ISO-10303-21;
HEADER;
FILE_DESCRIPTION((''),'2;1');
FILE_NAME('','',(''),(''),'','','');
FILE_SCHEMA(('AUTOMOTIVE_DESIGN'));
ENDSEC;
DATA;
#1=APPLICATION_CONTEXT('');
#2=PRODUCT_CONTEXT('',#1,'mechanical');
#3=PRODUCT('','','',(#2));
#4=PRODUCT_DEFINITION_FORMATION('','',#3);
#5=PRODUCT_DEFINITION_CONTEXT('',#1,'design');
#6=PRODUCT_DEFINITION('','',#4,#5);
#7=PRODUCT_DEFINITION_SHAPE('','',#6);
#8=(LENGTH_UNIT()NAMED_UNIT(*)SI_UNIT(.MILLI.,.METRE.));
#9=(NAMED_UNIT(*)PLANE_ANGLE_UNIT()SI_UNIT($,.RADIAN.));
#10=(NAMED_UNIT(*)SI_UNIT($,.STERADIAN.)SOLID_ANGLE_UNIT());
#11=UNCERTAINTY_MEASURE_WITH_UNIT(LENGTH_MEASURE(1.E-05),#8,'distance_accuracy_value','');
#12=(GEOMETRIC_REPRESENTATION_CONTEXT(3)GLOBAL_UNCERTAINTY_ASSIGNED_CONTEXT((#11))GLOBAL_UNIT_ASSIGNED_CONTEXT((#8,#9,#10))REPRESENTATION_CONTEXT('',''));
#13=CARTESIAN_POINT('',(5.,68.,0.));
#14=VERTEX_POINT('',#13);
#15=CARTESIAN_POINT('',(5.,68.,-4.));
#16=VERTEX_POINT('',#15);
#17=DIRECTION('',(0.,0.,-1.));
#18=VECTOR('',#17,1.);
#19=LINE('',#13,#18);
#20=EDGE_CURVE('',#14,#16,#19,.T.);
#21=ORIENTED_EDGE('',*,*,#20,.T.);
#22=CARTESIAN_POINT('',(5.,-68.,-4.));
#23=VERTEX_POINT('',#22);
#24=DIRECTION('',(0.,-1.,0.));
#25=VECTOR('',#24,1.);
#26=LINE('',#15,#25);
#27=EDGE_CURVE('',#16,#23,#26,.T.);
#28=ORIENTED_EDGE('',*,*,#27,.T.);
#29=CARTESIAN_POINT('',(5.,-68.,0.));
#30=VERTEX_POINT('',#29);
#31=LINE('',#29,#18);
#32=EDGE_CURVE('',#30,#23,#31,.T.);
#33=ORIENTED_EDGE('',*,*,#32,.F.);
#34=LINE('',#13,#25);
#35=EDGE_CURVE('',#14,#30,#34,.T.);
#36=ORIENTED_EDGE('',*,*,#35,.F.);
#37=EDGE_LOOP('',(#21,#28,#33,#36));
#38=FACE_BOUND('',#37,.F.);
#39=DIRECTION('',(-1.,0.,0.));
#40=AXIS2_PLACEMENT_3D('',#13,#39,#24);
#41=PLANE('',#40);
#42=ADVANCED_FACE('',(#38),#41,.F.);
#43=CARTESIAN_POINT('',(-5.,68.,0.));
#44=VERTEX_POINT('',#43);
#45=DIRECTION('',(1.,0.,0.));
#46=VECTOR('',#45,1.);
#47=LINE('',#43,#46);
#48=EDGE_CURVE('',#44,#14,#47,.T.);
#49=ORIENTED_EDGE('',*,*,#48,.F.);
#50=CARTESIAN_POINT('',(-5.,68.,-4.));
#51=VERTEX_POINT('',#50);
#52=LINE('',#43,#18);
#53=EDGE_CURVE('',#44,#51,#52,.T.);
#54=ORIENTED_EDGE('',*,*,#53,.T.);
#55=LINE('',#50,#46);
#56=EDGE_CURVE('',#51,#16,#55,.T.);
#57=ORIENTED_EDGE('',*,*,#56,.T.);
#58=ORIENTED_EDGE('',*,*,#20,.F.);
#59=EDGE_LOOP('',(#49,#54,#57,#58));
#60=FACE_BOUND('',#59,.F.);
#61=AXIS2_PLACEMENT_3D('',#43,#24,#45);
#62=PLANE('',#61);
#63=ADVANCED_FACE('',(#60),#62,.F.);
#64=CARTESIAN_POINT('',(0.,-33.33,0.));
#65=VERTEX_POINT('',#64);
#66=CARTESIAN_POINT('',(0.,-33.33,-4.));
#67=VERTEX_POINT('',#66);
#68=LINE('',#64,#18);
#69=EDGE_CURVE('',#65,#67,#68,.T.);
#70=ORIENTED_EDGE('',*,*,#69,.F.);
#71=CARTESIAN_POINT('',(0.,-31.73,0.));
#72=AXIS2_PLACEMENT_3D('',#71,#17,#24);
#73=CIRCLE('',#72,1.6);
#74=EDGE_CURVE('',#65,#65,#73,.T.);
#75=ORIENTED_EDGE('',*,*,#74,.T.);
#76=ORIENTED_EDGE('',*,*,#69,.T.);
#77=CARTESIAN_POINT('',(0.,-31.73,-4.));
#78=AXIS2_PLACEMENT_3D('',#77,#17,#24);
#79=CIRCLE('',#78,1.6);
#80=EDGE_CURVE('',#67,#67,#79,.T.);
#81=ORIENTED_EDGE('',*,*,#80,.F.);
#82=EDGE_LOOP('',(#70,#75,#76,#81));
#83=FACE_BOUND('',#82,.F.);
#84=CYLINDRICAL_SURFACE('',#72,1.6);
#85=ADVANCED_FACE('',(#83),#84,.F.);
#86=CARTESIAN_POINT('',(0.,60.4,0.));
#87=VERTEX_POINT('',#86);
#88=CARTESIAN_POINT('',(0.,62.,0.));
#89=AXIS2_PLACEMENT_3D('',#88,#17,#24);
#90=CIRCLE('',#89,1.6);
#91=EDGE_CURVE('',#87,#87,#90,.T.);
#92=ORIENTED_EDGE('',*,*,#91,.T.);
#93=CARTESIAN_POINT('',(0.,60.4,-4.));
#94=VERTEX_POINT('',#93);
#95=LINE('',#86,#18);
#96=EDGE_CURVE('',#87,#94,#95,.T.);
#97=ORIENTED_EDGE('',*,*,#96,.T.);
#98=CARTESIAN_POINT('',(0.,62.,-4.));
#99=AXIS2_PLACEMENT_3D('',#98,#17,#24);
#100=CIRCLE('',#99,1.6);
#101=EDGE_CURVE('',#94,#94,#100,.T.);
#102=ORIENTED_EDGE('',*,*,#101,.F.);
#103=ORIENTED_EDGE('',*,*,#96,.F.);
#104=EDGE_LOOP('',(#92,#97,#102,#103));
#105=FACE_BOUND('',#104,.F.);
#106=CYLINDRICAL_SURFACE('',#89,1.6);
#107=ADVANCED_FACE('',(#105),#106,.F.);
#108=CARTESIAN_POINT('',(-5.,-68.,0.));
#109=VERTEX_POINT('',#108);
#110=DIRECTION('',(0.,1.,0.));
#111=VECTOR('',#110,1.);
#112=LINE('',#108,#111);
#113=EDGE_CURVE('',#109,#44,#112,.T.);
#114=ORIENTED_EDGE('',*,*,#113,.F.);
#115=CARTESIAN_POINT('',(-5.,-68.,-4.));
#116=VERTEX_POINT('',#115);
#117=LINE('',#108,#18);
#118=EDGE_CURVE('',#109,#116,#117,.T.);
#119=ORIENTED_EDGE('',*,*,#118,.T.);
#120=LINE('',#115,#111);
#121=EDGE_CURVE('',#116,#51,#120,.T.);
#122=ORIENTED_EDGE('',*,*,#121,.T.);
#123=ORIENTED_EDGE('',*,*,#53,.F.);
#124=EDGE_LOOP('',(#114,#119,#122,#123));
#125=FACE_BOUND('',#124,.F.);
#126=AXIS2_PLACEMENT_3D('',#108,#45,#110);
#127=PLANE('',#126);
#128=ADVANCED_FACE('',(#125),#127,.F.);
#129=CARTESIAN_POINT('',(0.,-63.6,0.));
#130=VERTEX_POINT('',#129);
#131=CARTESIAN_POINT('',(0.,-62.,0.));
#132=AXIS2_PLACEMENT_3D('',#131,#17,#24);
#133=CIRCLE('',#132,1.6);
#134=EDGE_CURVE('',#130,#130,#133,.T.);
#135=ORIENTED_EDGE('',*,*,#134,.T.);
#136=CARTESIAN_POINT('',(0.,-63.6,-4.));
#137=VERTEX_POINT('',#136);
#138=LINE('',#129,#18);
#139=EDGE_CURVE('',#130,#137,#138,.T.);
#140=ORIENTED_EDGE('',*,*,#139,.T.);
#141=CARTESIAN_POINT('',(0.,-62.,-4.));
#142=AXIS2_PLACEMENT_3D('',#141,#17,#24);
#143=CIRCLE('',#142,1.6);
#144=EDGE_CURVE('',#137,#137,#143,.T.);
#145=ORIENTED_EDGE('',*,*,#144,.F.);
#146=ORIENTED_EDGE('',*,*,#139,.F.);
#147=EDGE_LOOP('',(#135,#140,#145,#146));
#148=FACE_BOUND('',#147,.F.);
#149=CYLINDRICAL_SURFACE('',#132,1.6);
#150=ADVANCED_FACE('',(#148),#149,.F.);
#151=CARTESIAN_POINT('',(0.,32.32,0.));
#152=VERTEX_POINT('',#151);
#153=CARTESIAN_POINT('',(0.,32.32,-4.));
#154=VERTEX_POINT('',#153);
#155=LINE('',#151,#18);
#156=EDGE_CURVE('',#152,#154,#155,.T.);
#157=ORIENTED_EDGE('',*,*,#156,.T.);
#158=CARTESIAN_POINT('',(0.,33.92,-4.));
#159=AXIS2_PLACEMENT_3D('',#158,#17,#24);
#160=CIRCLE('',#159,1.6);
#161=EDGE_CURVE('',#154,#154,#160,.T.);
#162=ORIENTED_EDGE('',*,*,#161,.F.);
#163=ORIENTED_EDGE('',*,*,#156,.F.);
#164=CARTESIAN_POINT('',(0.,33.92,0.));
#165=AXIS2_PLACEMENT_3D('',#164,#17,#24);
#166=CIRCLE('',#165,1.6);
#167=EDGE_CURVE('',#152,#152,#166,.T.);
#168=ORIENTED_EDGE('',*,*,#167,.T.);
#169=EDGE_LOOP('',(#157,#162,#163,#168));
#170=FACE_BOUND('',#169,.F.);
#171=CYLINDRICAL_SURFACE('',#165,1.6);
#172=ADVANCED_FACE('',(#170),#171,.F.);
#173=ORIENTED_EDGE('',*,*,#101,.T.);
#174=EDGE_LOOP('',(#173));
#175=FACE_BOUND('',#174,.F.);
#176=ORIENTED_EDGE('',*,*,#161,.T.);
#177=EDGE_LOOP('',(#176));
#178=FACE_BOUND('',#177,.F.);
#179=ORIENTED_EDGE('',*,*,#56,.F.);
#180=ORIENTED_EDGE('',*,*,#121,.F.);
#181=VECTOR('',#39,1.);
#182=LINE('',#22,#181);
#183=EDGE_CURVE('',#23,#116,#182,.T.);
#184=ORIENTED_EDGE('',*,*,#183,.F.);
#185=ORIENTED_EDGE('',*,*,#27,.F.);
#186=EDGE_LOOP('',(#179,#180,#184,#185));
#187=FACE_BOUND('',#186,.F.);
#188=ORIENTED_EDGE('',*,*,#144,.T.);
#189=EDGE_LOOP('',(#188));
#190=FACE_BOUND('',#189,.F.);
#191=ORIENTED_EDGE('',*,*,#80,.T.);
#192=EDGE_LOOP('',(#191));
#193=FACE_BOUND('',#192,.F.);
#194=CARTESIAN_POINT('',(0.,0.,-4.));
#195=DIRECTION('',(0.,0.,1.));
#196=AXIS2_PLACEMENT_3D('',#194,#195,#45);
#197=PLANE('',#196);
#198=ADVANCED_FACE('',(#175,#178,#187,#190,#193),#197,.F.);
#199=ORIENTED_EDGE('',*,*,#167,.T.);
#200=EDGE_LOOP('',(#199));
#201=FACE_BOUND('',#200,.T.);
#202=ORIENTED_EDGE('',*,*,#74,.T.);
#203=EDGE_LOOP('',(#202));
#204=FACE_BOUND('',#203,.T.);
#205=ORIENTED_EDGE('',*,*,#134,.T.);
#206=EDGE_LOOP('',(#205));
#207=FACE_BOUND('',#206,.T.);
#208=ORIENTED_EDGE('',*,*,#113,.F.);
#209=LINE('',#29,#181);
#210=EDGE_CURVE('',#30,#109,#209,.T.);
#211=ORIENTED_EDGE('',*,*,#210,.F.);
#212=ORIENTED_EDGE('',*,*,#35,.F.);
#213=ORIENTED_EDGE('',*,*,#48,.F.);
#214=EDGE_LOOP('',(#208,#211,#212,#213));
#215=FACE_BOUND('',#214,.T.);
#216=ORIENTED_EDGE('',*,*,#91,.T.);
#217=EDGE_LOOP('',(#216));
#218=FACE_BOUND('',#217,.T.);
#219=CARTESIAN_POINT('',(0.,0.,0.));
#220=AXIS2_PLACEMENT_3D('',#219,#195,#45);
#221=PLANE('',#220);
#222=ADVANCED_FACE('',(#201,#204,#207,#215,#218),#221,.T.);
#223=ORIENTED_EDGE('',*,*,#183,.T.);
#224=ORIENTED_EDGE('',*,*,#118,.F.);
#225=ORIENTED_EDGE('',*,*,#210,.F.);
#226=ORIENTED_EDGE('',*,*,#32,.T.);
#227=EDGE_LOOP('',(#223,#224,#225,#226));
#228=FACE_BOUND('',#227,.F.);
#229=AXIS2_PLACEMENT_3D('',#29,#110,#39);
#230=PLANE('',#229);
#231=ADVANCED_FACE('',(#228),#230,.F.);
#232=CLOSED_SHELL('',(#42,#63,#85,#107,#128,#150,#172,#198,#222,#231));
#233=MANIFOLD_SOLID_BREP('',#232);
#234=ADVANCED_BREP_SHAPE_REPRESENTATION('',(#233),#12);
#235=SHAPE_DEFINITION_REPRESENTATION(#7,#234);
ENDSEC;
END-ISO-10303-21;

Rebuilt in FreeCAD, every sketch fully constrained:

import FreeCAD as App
import Part
import Sketcher


def add_polygon(sketch, points):
    """Adds a closed chain of lines whose ends are joined by coincident constraints."""
    first, n = sketch.GeometryCount, len(points)
    for a, b in zip(points, points[1:] + points[:1]):
        sketch.addGeometry(Part.LineSegment(App.Vector(*a, 0), App.Vector(*b, 0)), False)
    for i in range(n):
        sketch.addConstraint(Sketcher.Constraint("Coincident", first + i, 2, first + (i + 1) % n, 1))

doc = App.newDocument("Part")
params = doc.addObject("Spreadsheet::Sheet", "Params")
for row, (alias, value) in enumerate([
    ("sketch1_width", "10 mm"),
    ("sketch1_height", "136 mm"),
    ("pad1_length", "4 mm"),
    ("sketch2_diameter", "3.2 mm"),
    ("hole_diameter", "3.2 mm"),
], start=1):
    params.set(f"A{row}", alias)
    params.set(f"B{row}", "=" + value)
    params.setAlias(f"B{row}", alias)

body = doc.addObject("PartDesign::Body", "Body")

# Sketch on XY plane
sketch1 = doc.addObject("Sketcher::SketchObject", "Sketch")
body.addObject(sketch1)
sketch1.AttachmentSupport = (doc.XY_Plane, [""])
sketch1.MapMode = "FlatFace"
add_polygon(sketch1, [(5, 68), (-5, 68), (-5, -68), (5, -68)])  # lines 0-3
sketch1.addConstraint(Sketcher.Constraint("Horizontal", 0))
sketch1.addConstraint(Sketcher.Constraint("Vertical", 1))
sketch1.addConstraint(Sketcher.Constraint("Horizontal", 2))
sketch1.addConstraint(Sketcher.Constraint("Vertical", 3))
sketch1.addConstraint(Sketcher.Constraint("Symmetric", 0, 2, 2, 2, -1, 1))
sketch1.addConstraint(Sketcher.Constraint("DistanceX", 0, 2, 0, 1, 10.0))
sketch1.addConstraint(Sketcher.Constraint("DistanceY", 1, 2, 1, 1, 136.0))
sketch1.setExpression("Constraints[9]", "Params.sketch1_width")
sketch1.setExpression("Constraints[10]", "Params.sketch1_height")
pad1 = doc.addObject("PartDesign::Pad", "Pad")
body.addObject(pad1)
pad1.Profile = sketch1
pad1.setExpression("Length", "Params.pad1_length")
pad1.Reversed = True

# Sketch on XY plane
sketch2 = doc.addObject("Sketcher::SketchObject", "Sketch001")
body.addObject(sketch2)
sketch2.AttachmentSupport = (doc.XY_Plane, [""])
sketch2.MapMode = "FlatFace"
sketch2.addGeometry(Part.Circle(App.Vector(0, 62, 0), App.Vector(0, 0, 1), 1.6), False)
sketch2.addGeometry(Part.Circle(App.Vector(0, -62, 0), App.Vector(0, 0, 1), 1.6), False)
sketch2.addGeometry(Part.Circle(App.Vector(0, 33.9, 0), App.Vector(0, 0, 1), 1.6), False)
sketch2.addGeometry(Part.Circle(App.Vector(0, -31.7, 0), App.Vector(0, 0, 1), 1.6), False)
sketch2.addConstraint(Sketcher.Constraint("Equal", 0, 1))
sketch2.addConstraint(Sketcher.Constraint("Equal", 1, 2))
sketch2.addConstraint(Sketcher.Constraint("Equal", 2, 3))
sketch2.addConstraint(Sketcher.Constraint("Symmetric", 0, 3, 1, 3, -1, 1))
sketch2.addConstraint(Sketcher.Constraint("PointOnObject", 0, 3, -2))
sketch2.addConstraint(Sketcher.Constraint("PointOnObject", 2, 3, -2))
sketch2.addConstraint(Sketcher.Constraint("PointOnObject", 3, 3, -2))
sketch2.addConstraint(Sketcher.Constraint("Diameter", 0, 3.2))
sketch2.addConstraint(Sketcher.Constraint("DistanceY", -1, 1, 0, 3, 62.0))
sketch2.addConstraint(Sketcher.Constraint("DistanceY", -1, 1, 2, 3, 33.92))
sketch2.addConstraint(Sketcher.Constraint("DistanceY", 3, 3, -1, 1, 31.73))
sketch2.setExpression("Constraints[7]", "Params.sketch2_diameter")
doc.recompute()
hole = doc.addObject("PartDesign::Hole", "Hole")
body.addObject(hole)
hole.Profile = sketch2
hole.ThreadType = "None"
hole.setExpression("Diameter", "Params.hole_diameter")
hole.DepthType = "ThroughAll"

doc.recompute()
